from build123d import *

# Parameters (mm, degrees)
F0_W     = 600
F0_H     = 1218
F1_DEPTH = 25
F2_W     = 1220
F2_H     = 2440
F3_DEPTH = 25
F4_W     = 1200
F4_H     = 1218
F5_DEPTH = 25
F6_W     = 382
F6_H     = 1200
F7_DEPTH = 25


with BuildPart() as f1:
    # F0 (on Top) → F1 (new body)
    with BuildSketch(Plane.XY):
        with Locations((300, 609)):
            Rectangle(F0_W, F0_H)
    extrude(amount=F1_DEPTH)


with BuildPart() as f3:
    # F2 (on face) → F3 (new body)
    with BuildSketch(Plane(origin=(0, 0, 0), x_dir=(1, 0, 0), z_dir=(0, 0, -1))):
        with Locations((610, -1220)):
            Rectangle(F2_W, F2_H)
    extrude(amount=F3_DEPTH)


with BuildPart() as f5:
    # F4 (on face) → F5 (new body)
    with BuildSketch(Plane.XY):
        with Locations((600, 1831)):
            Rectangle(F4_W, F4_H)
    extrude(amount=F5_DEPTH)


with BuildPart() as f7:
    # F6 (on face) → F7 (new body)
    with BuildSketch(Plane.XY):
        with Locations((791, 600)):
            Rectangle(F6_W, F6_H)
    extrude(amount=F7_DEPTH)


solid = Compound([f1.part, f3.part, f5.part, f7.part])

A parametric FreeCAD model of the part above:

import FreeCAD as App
import Part
import Sketcher
from FreeCAD import Vector

doc = App.newDocument("Part")
body = doc.addObject("PartDesign::Body", "Body")

sketch1 = body.newObject("Sketcher::SketchObject", "Sketch")
sketch1.AttachmentSupport = (doc.getObject("XY_Plane"), [""])
sketch1.MapMode = "FlatFace"
sketch1.addGeometry(Part.LineSegment(Vector(0, 1218, 0), Vector(0, 0, 0)), False)
sketch1.addGeometry(Part.LineSegment(Vector(0, 0, 0), Vector(600, 0, 0)), False)
sketch1.addGeometry(Part.LineSegment(Vector(600, 0, 0), Vector(600, 1218, 0)), False)
sketch1.addGeometry(Part.LineSegment(Vector(600, 1218, 0), Vector(0, 1218, 0)), False)
sketch1.addConstraint(Sketcher.Constraint("Coincident", 0, 2, 1, 1))
sketch1.addConstraint(Sketcher.Constraint("Coincident", 1, 2, 2, 1))
sketch1.addConstraint(Sketcher.Constraint("Coincident", 2, 2, 3, 1))
sketch1.addConstraint(Sketcher.Constraint("Coincident", 3, 2, 0, 1))
sketch1.addConstraint(Sketcher.Constraint("Vertical", 0))
sketch1.addConstraint(Sketcher.Constraint("Horizontal", 1))
sketch1.addConstraint(Sketcher.Constraint("Vertical", 2))
sketch1.addConstraint(Sketcher.Constraint("Horizontal", 3))
sketch1.addConstraint(Sketcher.Constraint("Coincident", 0, 2, -1, 1))
sketch1.addConstraint(Sketcher.Constraint("DistanceX", 1, 1, 1, 2, 600.0))
sketch1.addConstraint(Sketcher.Constraint("DistanceY", 0, 2, 0, 1, 1218.0))
pad1 = body.newObject("PartDesign::Pad", "Pad")
pad1.Profile = sketch1
pad1.Length = 25
body2 = doc.addObject("PartDesign::Body", "Body001")

sketch2 = body2.newObject("Sketcher::SketchObject", "Sketch001")
sketch2.AttachmentSupport = (doc.getObject("XY_Plane001"), [""])
sketch2.MapMode = "FlatFace"
sketch2.addGeometry(Part.LineSegment(Vector(0, 0, 0), Vector(0, 2440, 0)), False)
sketch2.addGeometry(Part.LineSegment(Vector(0, 2440, 0), Vector(1220, 2440, 0)), False)
sketch2.addGeometry(Part.LineSegment(Vector(1220, 2440, 0), Vector(1220, 0, 0)), False)
sketch2.addGeometry(Part.LineSegment(Vector(1220, 0, 0), Vector(0, 0, 0)), False)
sketch2.addConstraint(Sketcher.Constraint("Coincident", 0, 2, 1, 1))
sketch2.addConstraint(Sketcher.Constraint("Coincident", 1, 2, 2, 1))
sketch2.addConstraint(Sketcher.Constraint("Coincident", 2, 2, 3, 1))
sketch2.addConstraint(Sketcher.Constraint("Coincident", 3, 2, 0, 1))
sketch2.addConstraint(Sketcher.Constraint("Vertical", 0))
sketch2.addConstraint(Sketcher.Constraint("Horizontal", 1))
sketch2.addConstraint(Sketcher.Constraint("Vertical", 2))
sketch2.addConstraint(Sketcher.Constraint("Horizontal", 3))
sketch2.addConstraint(Sketcher.Constraint("Coincident", 3, 2, -1, 1))
sketch2.addConstraint(Sketcher.Constraint("DistanceX", 1, 1, 1, 2, 1220.0))
sketch2.addConstraint(Sketcher.Constraint("DistanceY", 0, 1, 0, 2, 2440.0))
pad2 = body2.newObject("PartDesign::Pad", "Pad001")
pad2.Profile = sketch2
pad2.Length = 25
pad2.Reversed = True
body3 = doc.addObject("PartDesign::Body", "Body002")

sketch3 = body3.newObject("Sketcher::SketchObject", "Sketch002")
sketch3.AttachmentSupport = (doc.getObject("XY_Plane002"), [""])
sketch3.MapMode = "FlatFace"
sketch3.addGeometry(Part.LineSegment(Vector(0, 2440, 0), Vector(0, 1222, 0)), False)
sketch3.addGeometry(Part.LineSegment(Vector(0, 1222, 0), Vector(1200, 1222, 0)), False)
sketch3.addGeometry(Part.LineSegment(Vector(1200, 1222, 0), Vector(1200, 2440, 0)), False)
sketch3.addGeometry(Part.LineSegment(Vector(1200, 2440, 0), Vector(0, 2440, 0)), False)
sketch3.addConstraint(Sketcher.Constraint("Coincident", 0, 2, 1, 1))
sketch3.addConstraint(Sketcher.Constraint("Coincident", 1, 2, 2, 1))
sketch3.addConstraint(Sketcher.Constraint("Coincident", 2, 2, 3, 1))
sketch3.addConstraint(Sketcher.Constraint("Coincident", 3, 2, 0, 1))
sketch3.addConstraint(Sketcher.Constraint("Vertical", 0))
sketch3.addConstraint(Sketcher.Constraint("Horizontal", 1))
sketch3.addConstraint(Sketcher.Constraint("Vertical", 2))
sketch3.addConstraint(Sketcher.Constraint("Horizontal", 3))
sketch3.addConstraint(Sketcher.Constraint("PointOnObject", 0, 2, -2))
sketch3.addConstraint(Sketcher.Constraint("DistanceX", 1, 1, 1, 2, 1200.0))
sketch3.addConstraint(Sketcher.Constraint("DistanceY", 0, 2, 0, 1, 1218.0))
sketch3.addConstraint(Sketcher.Constraint("DistanceY", -1, 1, 0, 2, 1222.0))
pad3 = body3.newObject("PartDesign::Pad", "Pad002")
pad3.Profile = sketch3
pad3.Length = 25
body4 = doc.addObject("PartDesign::Body", "Body003")

sketch4 = body4.newObject("Sketcher::SketchObject", "Sketch003")
sketch4.AttachmentSupport = (doc.getObject("XY_Plane003"), [""])
sketch4.MapMode = "FlatFace"
sketch4.addGeometry(Part.LineSegment(Vector(600, 1200, 0), Vector(600, 0, 0)), False)
sketch4.addGeometry(Part.LineSegment(Vector(600, 0, 0), Vector(982, 0, 0)), False)
sketch4.addGeometry(Part.LineSegment(Vector(982, 0, 0), Vector(982, 1200, 0)), False)
sketch4.addGeometry(Part.LineSegment(Vector(982, 1200, 0), Vector(600, 1200, 0)), False)
sketch4.addConstraint(Sketcher.Constraint("Coincident", 0, 2, 1, 1))
sketch4.addConstraint(Sketcher.Constraint("Coincident", 1, 2, 2, 1))
sketch4.addConstraint(Sketcher.Constraint("Coincident", 2, 2, 3, 1))
sketch4.addConstraint(Sketcher.Constraint("Coincident", 3, 2, 0, 1))
sketch4.addConstraint(Sketcher.Constraint("Vertical", 0))
sketch4.addConstraint(Sketcher.Constraint("Horizontal", 1))
sketch4.addConstraint(Sketcher.Constraint("Vertical", 2))
sketch4.addConstraint(Sketcher.Constraint("Horizontal", 3))
sketch4.addConstraint(Sketcher.Constraint("PointOnObject", 0, 2, -1))
sketch4.addConstraint(Sketcher.Constraint("DistanceX", 1, 1, 1, 2, 382.0))
sketch4.addConstraint(Sketcher.Constraint("DistanceY", 0, 2, 0, 1, 1200.0))
sketch4.addConstraint(Sketcher.Constraint("DistanceX", -1, 1, 0, 2, 600.0))
pad4 = body4.newObject("PartDesign::Pad", "Pad003")
pad4.Profile = sketch4
pad4.Length = 25

doc.recompute()
